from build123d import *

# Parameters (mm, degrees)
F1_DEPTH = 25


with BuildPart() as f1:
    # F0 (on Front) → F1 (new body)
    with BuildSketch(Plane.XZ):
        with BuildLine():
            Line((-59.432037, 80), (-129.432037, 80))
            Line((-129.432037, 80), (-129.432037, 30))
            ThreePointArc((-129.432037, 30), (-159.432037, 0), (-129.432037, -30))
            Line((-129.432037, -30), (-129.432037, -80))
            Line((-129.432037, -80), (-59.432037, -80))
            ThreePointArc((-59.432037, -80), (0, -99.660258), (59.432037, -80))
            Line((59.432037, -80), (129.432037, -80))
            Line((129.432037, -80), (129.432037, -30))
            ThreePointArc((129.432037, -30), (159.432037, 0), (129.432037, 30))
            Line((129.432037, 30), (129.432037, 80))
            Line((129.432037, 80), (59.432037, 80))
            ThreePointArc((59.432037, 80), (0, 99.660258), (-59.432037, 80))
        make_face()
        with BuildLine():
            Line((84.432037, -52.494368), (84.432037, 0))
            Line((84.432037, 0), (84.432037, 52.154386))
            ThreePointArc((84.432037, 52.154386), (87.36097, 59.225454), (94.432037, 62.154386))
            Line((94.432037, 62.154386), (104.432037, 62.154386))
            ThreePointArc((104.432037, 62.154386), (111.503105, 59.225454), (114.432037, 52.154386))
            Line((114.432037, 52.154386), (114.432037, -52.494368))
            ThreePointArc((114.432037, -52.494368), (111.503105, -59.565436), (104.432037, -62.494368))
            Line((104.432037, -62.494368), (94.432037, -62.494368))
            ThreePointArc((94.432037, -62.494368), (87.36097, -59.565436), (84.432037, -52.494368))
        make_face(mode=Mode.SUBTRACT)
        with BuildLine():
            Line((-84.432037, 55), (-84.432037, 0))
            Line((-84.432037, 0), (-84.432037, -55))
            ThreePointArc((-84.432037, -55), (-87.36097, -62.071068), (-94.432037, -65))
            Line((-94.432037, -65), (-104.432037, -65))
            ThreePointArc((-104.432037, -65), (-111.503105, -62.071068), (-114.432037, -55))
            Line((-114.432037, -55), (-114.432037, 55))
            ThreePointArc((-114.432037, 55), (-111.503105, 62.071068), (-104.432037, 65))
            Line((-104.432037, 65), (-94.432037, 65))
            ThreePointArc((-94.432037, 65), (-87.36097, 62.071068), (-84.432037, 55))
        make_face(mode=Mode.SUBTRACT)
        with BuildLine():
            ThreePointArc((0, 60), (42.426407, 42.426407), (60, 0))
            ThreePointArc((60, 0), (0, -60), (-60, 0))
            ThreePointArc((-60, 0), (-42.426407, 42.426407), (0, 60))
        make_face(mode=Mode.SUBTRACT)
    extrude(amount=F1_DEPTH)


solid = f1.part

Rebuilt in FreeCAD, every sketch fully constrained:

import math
import FreeCAD as App
import Part
import Sketcher

V = App.Vector

doc = App.newDocument("Part")
body = doc.addObject("PartDesign::Body", "Body")

sketch1 = doc.addObject("Sketcher::SketchObject", "Sketch")
body.addObject(sketch1)
sketch1.AttachmentSupport = (doc.XZ_Plane, [""])
sketch1.MapMode = "FlatFace"
sketch1.addGeometry([
    Part.LineSegment(V(-59, 80, 0), V(-129, 80, 0)),
    Part.LineSegment(V(-129, 80, 0), V(-129, 30, 0)),
    Part.ArcOfCircle(Part.Circle(V(-129, 0, 0), V(0, 0, 1), 30), math.radians(90), math.radians(270)),
    Part.LineSegment(V(-129, -30, 0), V(-129, -80, 0)),
    Part.LineSegment(V(-129, -80, 0), V(-59, -80, 0)),
    Part.ArcOfCircle(Part.Circle(V(0, 0, 0), V(0, 0, 1), 100), math.radians(-127), math.radians(-53)),
    Part.LineSegment(V(59, -80, 0), V(129, -80, 0)),
    Part.LineSegment(V(129, -80, 0), V(129, -30, 0)),
    Part.ArcOfCircle(Part.Circle(V(129, 0, 0), V(0, 0, 1), 30), math.radians(-90), math.radians(90)),
    Part.LineSegment(V(129, 30, 0), V(129, 80, 0)),
    Part.LineSegment(V(129, 80, 0), V(59, 80, 0)),
    Part.ArcOfCircle(Part.Circle(V(0, 0, 0), V(0, 0, 1), 100), math.radians(53), math.radians(127)),
    Part.ArcOfCircle(Part.Circle(V(94, -52, 0), V(0, 0, 1), 10), math.radians(-180), math.radians(-90)),
    Part.LineSegment(V(84, -52, 0), V(84, 52, 0)),
    Part.ArcOfCircle(Part.Circle(V(94, 52, 0), V(0, 0, 1), 10), math.radians(90), math.radians(180)),
    Part.LineSegment(V(94, 62, 0), V(104, 62, 0)),
    Part.ArcOfCircle(Part.Circle(V(104, 52, 0), V(0, 0, 1), 10), math.radians(0), math.radians(90)),
    Part.LineSegment(V(114, 52, 0), V(114, -52, 0)),
    Part.ArcOfCircle(Part.Circle(V(104, -52, 0), V(0, 0, 1), 10), math.radians(-90), math.radians(0)),
    Part.LineSegment(V(104, -62, 0), V(94, -62, 0)),
    Part.ArcOfCircle(Part.Circle(V(-94, 55, 0), V(0, 0, 1), 10), math.radians(0), math.radians(90)),
    Part.LineSegment(V(-84, 55, 0), V(-84, -55, 0)),
    Part.ArcOfCircle(Part.Circle(V(-94, -55, 0), V(0, 0, 1), 10), math.radians(-90), math.radians(0)),
    Part.LineSegment(V(-94, -65, 0), V(-104, -65, 0)),
    Part.ArcOfCircle(Part.Circle(V(-104, -55, 0), V(0, 0, 1), 10), math.radians(180), math.radians(270)),
    Part.LineSegment(V(-114, -55, 0), V(-114, 55, 0)),
    Part.ArcOfCircle(Part.Circle(V(-104, 55, 0), V(0, 0, 1), 10), math.radians(90), math.radians(180)),
    Part.LineSegment(V(-104, 65, 0), V(-94, 65, 0)),
    Part.ArcOfCircle(Part.Circle(V(0, 0, 0), V(0, 0, 1), 60), math.radians(90), math.radians(180)),
    Part.ArcOfCircle(Part.Circle(V(0, 0, 0), V(0, 0, 1), 60), math.radians(0), math.radians(90)),
    Part.ArcOfCircle(Part.Circle(V(0, 0, 0), V(0, 0, 1), 60), math.radians(180), math.radians(360)),
], False)
sketch1.addConstraint([
    Sketcher.Constraint("Coincident", 0, 2, 1, 1),
    Sketcher.Constraint("Coincident", 1, 2, 2, 1),
    Sketcher.Constraint("Coincident", 2, 2, 3, 1),
    Sketcher.Constraint("Coincident", 3, 2, 4, 1),
    Sketcher.Constraint("Coincident", 4, 2, 5, 1),
    Sketcher.Constraint("Coincident", 5, 2, 6, 1),
    Sketcher.Constraint("Coincident", 6, 2, 7, 1),
    Sketcher.Constraint("Coincident", 7, 2, 8, 1),
    Sketcher.Constraint("Coincident", 8, 2, 9, 1),
    Sketcher.Constraint("Coincident", 9, 2, 10, 1),
    Sketcher.Constraint("Coincident", 10, 2, 11, 1),
    Sketcher.Constraint("Coincident", 11, 2, 0, 1),
    Sketcher.Constraint("Tangent", 12, 1, 13, 1),
    Sketcher.Constraint("Tangent", 13, 2, 14, 2),
    Sketcher.Constraint("Tangent", 14, 1, 15, 1),
    Sketcher.Constraint("Tangent", 15, 2, 16, 2),
    Sketcher.Constraint("Tangent", 16, 1, 17, 1),
    Sketcher.Constraint("Tangent", 17, 2, 18, 2),
    Sketcher.Constraint("Tangent", 18, 1, 19, 1),
    Sketcher.Constraint("Tangent", 19, 2, 12, 2),
    Sketcher.Constraint("Tangent", 20, 1, 21, 1),
    Sketcher.Constraint("Tangent", 21, 2, 22, 2),
    Sketcher.Constraint("Tangent", 22, 1, 23, 1),
    Sketcher.Constraint("Tangent", 23, 2, 24, 2),
    Sketcher.Constraint("Tangent", 24, 1, 25, 1),
    Sketcher.Constraint("Tangent", 25, 2, 26, 2),
    Sketcher.Constraint("Tangent", 26, 1, 27, 1),
    Sketcher.Constraint("Tangent", 27, 2, 20, 2),
    Sketcher.Constraint("Tangent", 28, 1, 29, 2),
    Sketcher.Constraint("Tangent", 29, 1, 30, 2),
    Sketcher.Constraint("Tangent", 30, 1, 28, 2),
    Sketcher.Constraint("Horizontal", 0),
    Sketcher.Constraint("Vertical", 1),
    Sketcher.Constraint("Vertical", 3),
    Sketcher.Constraint("Horizontal", 4),
    Sketcher.Constraint("Horizontal", 6),
    Sketcher.Constraint("Vertical", 7),
    Sketcher.Constraint("Vertical", 9),
    Sketcher.Constraint("Horizontal", 10),
    Sketcher.Constraint("Vertical", 13),
    Sketcher.Constraint("Horizontal", 15),
    Sketcher.Constraint("Vertical", 17),
    Sketcher.Constraint("Horizontal", 19),
    Sketcher.Constraint("Vertical", 21),
    Sketcher.Constraint("Horizontal", 23),
    Sketcher.Constraint("Vertical", 25),
    Sketcher.Constraint("Horizontal", 27),
    Sketcher.Constraint("Coincident", 5, 3, -1, 1),
    Sketcher.Constraint("Coincident", 11, 3, -1, 1),
    Sketcher.Constraint("Coincident", 28, 3, -1, 1),
    Sketcher.Constraint("Equal", 2, 8),
    Sketcher.Constraint("Equal", 5, 11),
    Sketcher.Constraint("Equal", 12, 14),
    Sketcher.Constraint("Equal", 14, 16),
    Sketcher.Constraint("Equal", 16, 18),
    Sketcher.Constraint("Equal", 18, 20),
    Sketcher.Constraint("Equal", 20, 22),
    Sketcher.Constraint("Equal", 22, 24),
    Sketcher.Constraint("Equal", 24, 26),
    Sketcher.Constraint("Symmetric", 2, 3, 8, 3, -1, 1),
    Sketcher.Constraint("Symmetric", 0, 2, 6, 2, -1, 1),
    Sketcher.Constraint("Symmetric", 3, 2, 9, 2, -1, 1),
    Sketcher.Constraint("Symmetric", 3, 2, 6, 2, -2),
    Sketcher.Constraint("PointOnObject", 2, 3, -1),
    Sketcher.Constraint("PointOnObject", 28, 1, -2),
    Sketcher.Constraint("PointOnObject", 29, 1, -1),
    Sketcher.Constraint("PointOnObject", 30, 1, -1),
    Sketcher.Constraint("Vertical", 2, 3, 0, 2),
    Sketcher.Constraint("Equal", 19, 23),
    Sketcher.Constraint("Radius", 2, 30.0),
    Sketcher.Constraint("Radius", 12, 10.000001),
    Sketcher.Constraint("Radius", 28, 60.0),
    Sketcher.Constraint("DistanceX", 0, 2, 0, 1, 70.0),
    Sketcher.Constraint("DistanceX", 15, 1, 15, 2, 10.0),
    Sketcher.Constraint("DistanceY", 1, 2, 1, 1, 50.0),
    Sketcher.Constraint("DistanceY", 21, 2, 21, 1, 110.0),
    Sketcher.Constraint("DistanceY", -1, 1, 20, 3, 54.999999),
    Sketcher.Constraint("DistanceX", 12, 3, 8, 3, 34.999999),
    Sketcher.Constraint("DistanceX", 2, 3, 20, 3, 34.999999),
    Sketcher.Constraint("Radius", 5, 99.660258),
    Sketcher.Constraint("DistanceY", 13, 1, 13, 2, 104.648754),
    Sketcher.Constraint("DistanceY", 18, 3, -1, 1, 52.494369),
])
pad1 = doc.addObject("PartDesign::Pad", "Pad")
body.addObject(pad1)
pad1.Profile = sketch1
pad1.Length = 25

doc.recompute()
